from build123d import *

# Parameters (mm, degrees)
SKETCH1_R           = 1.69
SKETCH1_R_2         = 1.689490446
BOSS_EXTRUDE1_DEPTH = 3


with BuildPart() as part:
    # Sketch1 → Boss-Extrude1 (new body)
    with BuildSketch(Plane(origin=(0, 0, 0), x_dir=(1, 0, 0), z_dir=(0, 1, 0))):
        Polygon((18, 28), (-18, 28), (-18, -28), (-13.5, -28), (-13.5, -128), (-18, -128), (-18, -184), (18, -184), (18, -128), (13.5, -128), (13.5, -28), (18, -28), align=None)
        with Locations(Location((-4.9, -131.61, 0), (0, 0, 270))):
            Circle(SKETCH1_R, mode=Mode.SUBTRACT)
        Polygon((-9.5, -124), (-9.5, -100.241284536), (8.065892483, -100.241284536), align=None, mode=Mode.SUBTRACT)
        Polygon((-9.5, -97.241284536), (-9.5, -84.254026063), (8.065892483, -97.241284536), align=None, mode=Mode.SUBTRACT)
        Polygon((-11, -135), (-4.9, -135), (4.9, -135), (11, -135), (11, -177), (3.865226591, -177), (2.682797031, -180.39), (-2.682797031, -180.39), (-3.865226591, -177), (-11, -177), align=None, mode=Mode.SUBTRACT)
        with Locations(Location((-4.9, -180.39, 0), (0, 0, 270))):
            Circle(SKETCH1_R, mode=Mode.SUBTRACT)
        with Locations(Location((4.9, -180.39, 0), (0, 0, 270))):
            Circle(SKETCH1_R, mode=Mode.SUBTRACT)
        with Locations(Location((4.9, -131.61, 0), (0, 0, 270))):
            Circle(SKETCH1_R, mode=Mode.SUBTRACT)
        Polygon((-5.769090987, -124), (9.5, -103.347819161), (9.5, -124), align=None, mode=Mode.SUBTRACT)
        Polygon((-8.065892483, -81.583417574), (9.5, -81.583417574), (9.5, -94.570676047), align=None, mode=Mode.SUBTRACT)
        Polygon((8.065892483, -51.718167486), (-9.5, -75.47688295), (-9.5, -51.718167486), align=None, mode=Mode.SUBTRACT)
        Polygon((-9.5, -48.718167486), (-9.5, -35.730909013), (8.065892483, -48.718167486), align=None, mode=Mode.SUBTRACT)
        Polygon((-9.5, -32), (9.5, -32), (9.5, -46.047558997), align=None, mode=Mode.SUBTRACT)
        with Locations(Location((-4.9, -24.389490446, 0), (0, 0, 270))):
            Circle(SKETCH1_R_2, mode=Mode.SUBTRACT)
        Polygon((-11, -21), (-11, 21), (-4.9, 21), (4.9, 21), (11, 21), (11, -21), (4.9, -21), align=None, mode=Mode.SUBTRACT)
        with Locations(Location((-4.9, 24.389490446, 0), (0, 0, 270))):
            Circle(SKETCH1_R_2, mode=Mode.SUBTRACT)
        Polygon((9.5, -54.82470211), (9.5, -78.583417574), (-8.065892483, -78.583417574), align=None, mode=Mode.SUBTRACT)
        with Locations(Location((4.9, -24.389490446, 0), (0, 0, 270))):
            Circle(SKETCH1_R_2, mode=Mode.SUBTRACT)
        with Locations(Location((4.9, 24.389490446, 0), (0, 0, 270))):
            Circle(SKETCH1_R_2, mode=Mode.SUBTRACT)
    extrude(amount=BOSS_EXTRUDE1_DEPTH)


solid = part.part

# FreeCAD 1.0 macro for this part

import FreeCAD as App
import Part
import Sketcher

V = App.Vector
Q = App.Units.Quantity

doc = App.newDocument("Part")
body = doc.addObject("PartDesign::Body", "Body")

sketch1 = body.newObject("Sketcher::SketchObject", "Sketch")
sketch1.AttachmentSupport = (doc.getObject("XZ_Plane"), [""])
sketch1.MapMode = "FlatFace"
sketch1.addGeometry(Part.LineSegment(V(18, -28, 0), V(-18, -28, 0)), False)
sketch1.addGeometry(Part.LineSegment(V(-18, -28, 0), V(-18, 28, 0)), False)
sketch1.addGeometry(Part.LineSegment(V(-18, 28, 0), V(-13.5, 28, 0)), False)
sketch1.addGeometry(Part.LineSegment(V(-13.5, 28, 0), V(-13.5, 128, 0)), False)
sketch1.addGeometry(Part.LineSegment(V(-13.5, 128, 0), V(-18, 128, 0)), False)
sketch1.addGeometry(Part.LineSegment(V(-18, 128, 0), V(-18, 184, 0)), False)
sketch1.addGeometry(Part.LineSegment(V(-18, 184, 0), V(18, 184, 0)), False)
sketch1.addGeometry(Part.LineSegment(V(18, 184, 0), V(18, 128, 0)), False)
sketch1.addGeometry(Part.LineSegment(V(18, 128, 0), V(13.5, 128, 0)), False)
sketch1.addGeometry(Part.LineSegment(V(13.5, 128, 0), V(13.5, 28, 0)), False)
sketch1.addGeometry(Part.LineSegment(V(13.5, 28, 0), V(18, 28, 0)), False)
sketch1.addGeometry(Part.LineSegment(V(18, 28, 0), V(18, -28, 0)), False)
sketch1.addGeometry(Part.Circle(V(-4.9, 180.39, 0), V(0, 0, 1), 1.69), False)
sketch1.addGeometry(Part.Circle(V(-4.9, 131.61, 0), V(0, 0, 1), 1.69), False)
sketch1.addGeometry(Part.LineSegment(V(8.065892, 100.241285, 0), V(-9.5, 124, 0)), False)
sketch1.addGeometry(Part.LineSegment(V(-9.5, 124, 0), V(-9.5, 100.241285, 0)), False)
sketch1.addGeometry(Part.LineSegment(V(-9.5, 100.241285, 0), V(8.065892, 100.241285, 0)), False)
sketch1.addGeometry(Part.LineSegment(V(8.065892, 97.241285, 0), V(-9.5, 97.241285, 0)), False)
sketch1.addGeometry(Part.LineSegment(V(-9.5, 97.241285, 0), V(-9.5, 84.254026, 0)), False)
sketch1.addGeometry(Part.LineSegment(V(-9.5, 84.254026, 0), V(8.065892, 97.241285, 0)), False)
sketch1.addGeometry(Part.LineSegment(V(-11, 177, 0), V(-11, 135, 0)), False)
sketch1.addGeometry(Part.LineSegment(V(-11, 135, 0), V(11, 135, 0)), False)
sketch1.addGeometry(Part.LineSegment(V(11, 135, 0), V(11, 177, 0)), False)
sketch1.addGeometry(Part.LineSegment(V(11, 177, 0), V(3.865227, 177, 0)), False)
sketch1.addGeometry(Part.LineSegment(V(3.865227, 177, 0), V(2.682797, 180.39, 0)), False)
sketch1.addGeometry(Part.LineSegment(V(2.682797, 180.39, 0), V(-2.682797, 180.39, 0)), False)
sketch1.addGeometry(Part.LineSegment(V(-2.682797, 180.39, 0), V(-3.865227, 177, 0)), False)
sketch1.addGeometry(Part.LineSegment(V(-3.865227, 177, 0), V(-11, 177, 0)), False)
sketch1.addGeometry(Part.Circle(V(4.9, 180.39, 0), V(0, 0, 1), 1.69), False)
sketch1.addGeometry(Part.Circle(V(4.9, 131.61, 0), V(0, 0, 1), 1.69), False)
sketch1.addGeometry(Part.LineSegment(V(9.5, 124, 0), V(-5.769091, 124, 0)), False)
sketch1.addGeometry(Part.LineSegment(V(-5.769091, 124, 0), V(9.5, 103.347819, 0)), False)
sketch1.addGeometry(Part.LineSegment(V(9.5, 103.347819, 0), V(9.5, 124, 0)), False)
sketch1.addGeometry(Part.LineSegment(V(9.5, 94.570676, 0), V(-8.065892, 81.583418, 0)), False)
sketch1.addGeometry(Part.LineSegment(V(-8.065892, 81.583418, 0), V(9.5, 81.583418, 0)), False)
sketch1.addGeometry(Part.LineSegment(V(9.5, 81.583418, 0), V(9.5, 94.570676, 0)), False)
sketch1.addGeometry(Part.LineSegment(V(-9.5, 51.718167, 0), V(8.065892, 51.718167, 0)), False)
sketch1.addGeometry(Part.LineSegment(V(8.065892, 51.718167, 0), V(-9.5, 75.476883, 0)), False)
sketch1.addGeometry(Part.LineSegment(V(-9.5, 75.476883, 0), V(-9.5, 51.718167, 0)), False)
sketch1.addGeometry(Part.LineSegment(V(8.065892, 48.718167, 0), V(-9.5, 48.718167, 0)), False)
sketch1.addGeometry(Part.LineSegment(V(-9.5, 48.718167, 0), V(-9.5, 35.730909, 0)), False)
sketch1.addGeometry(Part.LineSegment(V(-9.5, 35.730909, 0), V(8.065892, 48.718167, 0)), False)
sketch1.addGeometry(Part.Circle(V(-4.9, 24.38949, 0), V(0, 0, 1), 1.68949), False)
sketch1.addGeometry(Part.Circle(V(-4.9, -24.38949, 0), V(0, 0, 1), 1.68949), False)
sketch1.addGeometry(Part.LineSegment(V(-8.065892, 78.583418, 0), V(9.5, 54.824702, 0)), False)
sketch1.addGeometry(Part.LineSegment(V(9.5, 54.824702, 0), V(9.5, 78.583418, 0)), False)
sketch1.addGeometry(Part.LineSegment(V(9.5, 78.583418, 0), V(-8.065892, 78.583418, 0)), False)
sketch1.addGeometry(Part.LineSegment(V(9.5, 46.047559, 0), V(-9.5, 32, 0)), False)
sketch1.addGeometry(Part.LineSegment(V(-9.5, 32, 0), V(9.5, 32, 0)), False)
sketch1.addGeometry(Part.LineSegment(V(9.5, 32, 0), V(9.5, 46.047559, 0)), False)
sketch1.addGeometry(Part.LineSegment(V(11, 21, 0), V(-11, 21, 0)), False)
sketch1.addGeometry(Part.LineSegment(V(-11, 21, 0), V(-11, -21, 0)), False)
sketch1.addGeometry(Part.LineSegment(V(-11, -21, 0), V(11, -21, 0)), False)
sketch1.addGeometry(Part.LineSegment(V(11, -21, 0), V(11, 21, 0)), False)
sketch1.addGeometry(Part.Circle(V(4.9, 24.38949, 0), V(0, 0, 1), 1.68949), False)
sketch1.addGeometry(Part.Circle(V(4.9, -24.38949, 0), V(0, 0, 1), 1.68949), False)
sketch1.addConstraint(Sketcher.Constraint("Coincident", 0, 2, 1, 1))
sketch1.addConstraint(Sketcher.Constraint("Coincident", 1, 2, 2, 1))
sketch1.addConstraint(Sketcher.Constraint("Coincident", 2, 2, 3, 1))
sketch1.addConstraint(Sketcher.Constraint("Coincident", 3, 2, 4, 1))
sketch1.addConstraint(Sketcher.Constraint("Coincident", 4, 2, 5, 1))
sketch1.addConstraint(Sketcher.Constraint("Coincident", 5, 2, 6, 1))
sketch1.addConstraint(Sketcher.Constraint("Coincident", 6, 2, 7, 1))
sketch1.addConstraint(Sketcher.Constraint("Coincident", 7, 2, 8, 1))
sketch1.addConstraint(Sketcher.Constraint("Coincident", 8, 2, 9, 1))
sketch1.addConstraint(Sketcher.Constraint("Coincident", 9, 2, 10, 1))
sketch1.addConstraint(Sketcher.Constraint("Coincident", 10, 2, 11, 1))
sketch1.addConstraint(Sketcher.Constraint("Coincident", 11, 2, 0, 1))
sketch1.addConstraint(Sketcher.Constraint("Coincident", 14, 2, 15, 1))
sketch1.addConstraint(Sketcher.Constraint("Coincident", 15, 2, 16, 1))
sketch1.addConstraint(Sketcher.Constraint("Coincident", 16, 2, 14, 1))
sketch1.addConstraint(Sketcher.Constraint("Coincident", 17, 2, 18, 1))
sketch1.addConstraint(Sketcher.Constraint("Coincident", 18, 2, 19, 1))
sketch1.addConstraint(Sketcher.Constraint("Coincident", 19, 2, 17, 1))
sketch1.addConstraint(Sketcher.Constraint("Coincident", 20, 2, 21, 1))
sketch1.addConstraint(Sketcher.Constraint("Coincident", 21, 2, 22, 1))
sketch1.addConstraint(Sketcher.Constraint("Coincident", 22, 2, 23, 1))
sketch1.addConstraint(Sketcher.Constraint("Coincident", 23, 2, 24, 1))
sketch1.addConstraint(Sketcher.Constraint("Coincident", 24, 2, 25, 1))
sketch1.addConstraint(Sketcher.Constraint("Coincident", 25, 2, 26, 1))
sketch1.addConstraint(Sketcher.Constraint("Coincident", 26, 2, 27, 1))
sketch1.addConstraint(Sketcher.Constraint("Coincident", 27, 2, 20, 1))
sketch1.addConstraint(Sketcher.Constraint("Coincident", 30, 2, 31, 1))
sketch1.addConstraint(Sketcher.Constraint("Coincident", 31, 2, 32, 1))
sketch1.addConstraint(Sketcher.Constraint("Coincident", 32, 2, 30, 1))
sketch1.addConstraint(Sketcher.Constraint("Coincident", 33, 2, 34, 1))
sketch1.addConstraint(Sketcher.Constraint("Coincident", 34, 2, 35, 1))
sketch1.addConstraint(Sketcher.Constraint("Coincident", 35, 2, 33, 1))
sketch1.addConstraint(Sketcher.Constraint("Coincident", 36, 2, 37, 1))
sketch1.addConstraint(Sketcher.Constraint("Coincident", 37, 2, 38, 1))
sketch1.addConstraint(Sketcher.Constraint("Coincident", 38, 2, 36, 1))
sketch1.addConstraint(Sketcher.Constraint("Coincident", 39, 2, 40, 1))
sketch1.addConstraint(Sketcher.Constraint("Coincident", 40, 2, 41, 1))
sketch1.addConstraint(Sketcher.Constraint("Coincident", 41, 2, 39, 1))
sketch1.addConstraint(Sketcher.Constraint("Coincident", 44, 2, 45, 1))
sketch1.addConstraint(Sketcher.Constraint("Coincident", 45, 2, 46, 1))
sketch1.addConstraint(Sketcher.Constraint("Coincident", 46, 2, 44, 1))
sketch1.addConstraint(Sketcher.Constraint("Coincident", 47, 2, 48, 1))
sketch1.addConstraint(Sketcher.Constraint("Coincident", 48, 2, 49, 1))
sketch1.addConstraint(Sketcher.Constraint("Coincident", 49, 2, 47, 1))
sketch1.addConstraint(Sketcher.Constraint("Coincident", 50, 2, 51, 1))
sketch1.addConstraint(Sketcher.Constraint("Coincident", 51, 2, 52, 1))
sketch1.addConstraint(Sketcher.Constraint("Coincident", 52, 2, 53, 1))
sketch1.addConstraint(Sketcher.Constraint("Coincident", 53, 2, 50, 1))
sketch1.addConstraint(Sketcher.Constraint("Horizontal", 0))
sketch1.addConstraint(Sketcher.Constraint("Vertical", 1))
sketch1.addConstraint(Sketcher.Constraint("Horizontal", 2))
sketch1.addConstraint(Sketcher.Constraint("Vertical", 3))
sketch1.addConstraint(Sketcher.Constraint("Horizontal", 4))
sketch1.addConstraint(Sketcher.Constraint("Vertical", 5))
sketch1.addConstraint(Sketcher.Constraint("Horizontal", 6))
sketch1.addConstraint(Sketcher.Constraint("Vertical", 7))
sketch1.addConstraint(Sketcher.Constraint("Horizontal", 8))
sketch1.addConstraint(Sketcher.Constraint("Vertical", 9))
sketch1.addConstraint(Sketcher.Constraint("Horizontal", 10))
sketch1.addConstraint(Sketcher.Constraint("Vertical", 11))
sketch1.addConstraint(Sketcher.Constraint("Vertical", 15))
sketch1.addConstraint(Sketcher.Constraint("Horizontal", 16))
sketch1.addConstraint(Sketcher.Constraint("Horizontal", 17))
sketch1.addConstraint(Sketcher.Constraint("Vertical", 18))
sketch1.addConstraint(Sketcher.Constraint("Vertical", 20))
sketch1.addConstraint(Sketcher.Constraint("Horizontal", 21))
sketch1.addConstraint(Sketcher.Constraint("Vertical", 22))
sketch1.addConstraint(Sketcher.Constraint("Horizontal", 23))
sketch1.addConstraint(Sketcher.Constraint("Horizontal", 25))
sketch1.addConstraint(Sketcher.Constraint("Horizontal", 27))
sketch1.addConstraint(Sketcher.Constraint("Horizontal", 30))
sketch1.addConstraint(Sketcher.Constraint("Vertical", 32))
sketch1.addConstraint(Sketcher.Constraint("Horizontal", 34))
sketch1.addConstraint(Sketcher.Constraint("Vertical", 35))
sketch1.addConstraint(Sketcher.Constraint("Horizontal", 36))
sketch1.addConstraint(Sketcher.Constraint("Vertical", 38))
sketch1.addConstraint(Sketcher.Constraint("Horizontal", 39))
sketch1.addConstraint(Sketcher.Constraint("Vertical", 40))
sketch1.addConstraint(Sketcher.Constraint("Vertical", 45))
sketch1.addConstraint(Sketcher.Constraint("Horizontal", 46))
sketch1.addConstraint(Sketcher.Constraint("Horizontal", 48))
sketch1.addConstraint(Sketcher.Constraint("Vertical", 49))
sketch1.addConstraint(Sketcher.Constraint("Horizontal", 50))
sketch1.addConstraint(Sketcher.Constraint("Vertical", 51))
sketch1.addConstraint(Sketcher.Constraint("Horizontal", 52))
sketch1.addConstraint(Sketcher.Constraint("Vertical", 53))
sketch1.addConstraint(Sketcher.Constraint("Equal", 12, 13))
sketch1.addConstraint(Sketcher.Constraint("Equal", 13, 28))
sketch1.addConstraint(Sketcher.Constraint("Equal", 28, 29))
sketch1.addConstraint(Sketcher.Constraint("Equal", 42, 43))
sketch1.addConstraint(Sketcher.Constraint("Equal", 43, 54))
sketch1.addConstraint(Sketcher.Constraint("Equal", 54, 55))
sketch1.addConstraint(Sketcher.Constraint("Symmetric", 43, 3, 54, 3, -1, 1))
sketch1.addConstraint(Sketcher.Constraint("Symmetric", 42, 3, 55, 3, -1, 1))
sketch1.addConstraint(Sketcher.Constraint("Symmetric", 0, 2, 10, 2, -1, 1))
sketch1.addConstraint(Sketcher.Constraint("Symmetric", 50, 2, 52, 2, -1, 1))
sketch1.addConstraint(Sketcher.Constraint("Symmetric", 12, 3, 28, 3, -2))
sketch1.addConstraint(Sketcher.Constraint("Symmetric", 13, 3, 29, 3, -2))
sketch1.addConstraint(Sketcher.Constraint("Symmetric", 42, 3, 54, 3, -2))
sketch1.addConstraint(Sketcher.Constraint("Symmetric", 4, 2, 7, 2, -2))
sketch1.addConstraint(Sketcher.Constraint("Symmetric", 2, 2, 9, 2, -2))
sketch1.addConstraint(Sketcher.Constraint("Symmetric", 23, 2, 26, 2, -2))
sketch1.addConstraint(Sketcher.Constraint("Symmetric", 14, 2, 32, 2, -2))
sketch1.addConstraint(Sketcher.Constraint("Perpendicular", 14, 19))
sketch1.addConstraint(Sketcher.Constraint("Perpendicular", 19, 31))
sketch1.addConstraint(Sketcher.Constraint("Perpendicular", 31, 33))
sketch1.addConstraint(Sketcher.Constraint("Perpendicular", 33, 37))
sketch1.addConstraint(Sketcher.Constraint("Perpendicular", 37, 41))
sketch1.addConstraint(Sketcher.Constraint("Perpendicular", 41, 44))
sketch1.addConstraint(Sketcher.Constraint("Perpendicular", 44, 47))
sketch1.addConstraint(Sketcher.Constraint("Horizontal", 28, 3, 24, 2))
sketch1.addConstraint(Sketcher.Constraint("Vertical", 12, 3, 13, 3))
sketch1.addConstraint(Sketcher.Constraint("Vertical", 13, 3, 42, 3))
sketch1.addConstraint(Sketcher.Constraint("Vertical", 1, 2, 4, 2))
sketch1.addConstraint(Sketcher.Constraint("Vertical", 15, 2, 17, 2))
sketch1.addConstraint(Sketcher.Constraint("Vertical", 16, 2, 19, 2))
sketch1.addConstraint(Sketcher.Constraint("Vertical", 32, 2, 34, 2))
sketch1.addConstraint(Sketcher.Constraint("Vertical", 19, 2, 36, 2))
sketch1.addConstraint(Sketcher.Constraint("Vertical", 18, 2, 37, 2))
sketch1.addConstraint(Sketcher.Constraint("Vertical", 38, 2, 39, 2))
sketch1.addConstraint(Sketcher.Constraint("Vertical", 36, 2, 41, 2))
sketch1.addConstraint(Sketcher.Constraint("Vertical", 35, 2, 44, 2))
sketch1.addConstraint(Sketcher.Constraint("Vertical", 33, 2, 46, 2))
sketch1.addConstraint(Sketcher.Constraint("Vertical", 40, 2, 47, 2))
sketch1.addConstraint(Sketcher.Constraint("Vertical", 45, 2, 48, 2))
sketch1.addConstraint(Sketcher.Constraint("Vertical", 27, 2, 50, 2))
sketch1.addConstraint(Sketcher.Constraint("Vertical", 22, 2, 52, 2))
sketch1.addConstraint(Sketcher.Constraint("Equal", 17, 34))
sketch1.addConstraint(Sketcher.Constraint("Equal", 1, 5))
sketch1.addConstraint(Sketcher.Constraint("Equal", 22, 51))
sketch1.addConstraint(Sketcher.Constraint("Equal", 24, 26))
sketch1.addConstraint(Sketcher.Constraint("Diameter", 12, Q("3.38 mm")))
sketch1.addConstraint(Sketcher.Constraint("DistanceX", 0, 2, 0, 1, Q("36 mm")))
sketch1.addConstraint(Sketcher.Constraint("DistanceX", 21, 1, 21, 2, Q("22 mm")))
sketch1.addConstraint(Sketcher.Constraint("DistanceX", 48, 1, 48, 2, Q("19 mm")))
sketch1.addConstraint(Sketcher.Constraint("DistanceY", 1, 1, 1, 2, Q("56 mm")))
sketch1.addConstraint(Sketcher.Constraint("DistanceY", 3, 1, 3, 2, Q("100 mm")))
sketch1.addConstraint(Sketcher.Constraint("DistanceY", 20, 2, 20, 1, Q("42 mm")))
sketch1.addConstraint(Sketcher.Constraint("DistanceX", 2, 1, 2, 2, Q("4.5 mm")))
sketch1.addConstraint(Sketcher.Constraint("DistanceY", -1, 1, 14, 2, Q("124 mm")))
sketch1.addConstraint(Sketcher.Constraint("DistanceY", -1, 1, 20, 2, Q("135 mm")))
sketch1.addConstraint(Sketcher.Constraint("DistanceY", -1, 1, 47, 2, Q("32 mm")))
sketch1.addConstraint(Sketcher.Constraint("DistanceY", 17, 2, 15, 2, Q("3 mm")))
sketch1.addConstraint(Sketcher.Constraint("DistanceY", 39, 2, 38, 2, Q("3 mm")))
sketch1.addConstraint(Sketcher.Constraint("DistanceY", 45, 2, 34, 2, Q("3 mm")))
sketch1.addConstraint(Sketcher.Constraint("DistanceX", 12, 3, -1, 1, Q("4.9 mm")))
sketch1.addConstraint(Sketcher.Constraint("Diameter", 42, Q("3.378981 mm")))
sketch1.addConstraint(Sketcher.Constraint("DistanceY", -1, 1, 12, 3, Q("180.39 mm")))
sketch1.addConstraint(Sketcher.Constraint("DistanceY", -1, 1, 13, 3, Q("131.61 mm")))
sketch1.addConstraint(Sketcher.Constraint("Distance", 14, Q("29.547202 mm")))
sketch1.addConstraint(Sketcher.Constraint("DistanceX", 30, 2, 30, 1, Q("15.269091 mm")))
sketch1.addConstraint(Sketcher.Constraint("DistanceY", 18, 2, 18, 1, Q("12.987258 mm")))
sketch1.addConstraint(Sketcher.Constraint("DistanceY", 34, 2, 31, 2, Q("21.764402 mm")))
sketch1.addConstraint(Sketcher.Constraint("DistanceY", 37, 2, 17, 2, Q("21.764402 mm")))
sketch1.addConstraint(Sketcher.Constraint("DistanceX", 23, 2, 23, 1, Q("7.134773 mm")))
sketch1.addConstraint(Sketcher.Constraint("DistanceX", 25, 2, 25, 1, Q("5.365594 mm")))
sketch1.addConstraint(Sketcher.Constraint("DistanceY", -1, 1, 42, 3, Q("24.38949 mm")))
pad1 = body.newObject("PartDesign::Pad", "Pad")
pad1.Profile = sketch1
pad1.Length = 3
pad1.Reversed = True

doc.recompute()
